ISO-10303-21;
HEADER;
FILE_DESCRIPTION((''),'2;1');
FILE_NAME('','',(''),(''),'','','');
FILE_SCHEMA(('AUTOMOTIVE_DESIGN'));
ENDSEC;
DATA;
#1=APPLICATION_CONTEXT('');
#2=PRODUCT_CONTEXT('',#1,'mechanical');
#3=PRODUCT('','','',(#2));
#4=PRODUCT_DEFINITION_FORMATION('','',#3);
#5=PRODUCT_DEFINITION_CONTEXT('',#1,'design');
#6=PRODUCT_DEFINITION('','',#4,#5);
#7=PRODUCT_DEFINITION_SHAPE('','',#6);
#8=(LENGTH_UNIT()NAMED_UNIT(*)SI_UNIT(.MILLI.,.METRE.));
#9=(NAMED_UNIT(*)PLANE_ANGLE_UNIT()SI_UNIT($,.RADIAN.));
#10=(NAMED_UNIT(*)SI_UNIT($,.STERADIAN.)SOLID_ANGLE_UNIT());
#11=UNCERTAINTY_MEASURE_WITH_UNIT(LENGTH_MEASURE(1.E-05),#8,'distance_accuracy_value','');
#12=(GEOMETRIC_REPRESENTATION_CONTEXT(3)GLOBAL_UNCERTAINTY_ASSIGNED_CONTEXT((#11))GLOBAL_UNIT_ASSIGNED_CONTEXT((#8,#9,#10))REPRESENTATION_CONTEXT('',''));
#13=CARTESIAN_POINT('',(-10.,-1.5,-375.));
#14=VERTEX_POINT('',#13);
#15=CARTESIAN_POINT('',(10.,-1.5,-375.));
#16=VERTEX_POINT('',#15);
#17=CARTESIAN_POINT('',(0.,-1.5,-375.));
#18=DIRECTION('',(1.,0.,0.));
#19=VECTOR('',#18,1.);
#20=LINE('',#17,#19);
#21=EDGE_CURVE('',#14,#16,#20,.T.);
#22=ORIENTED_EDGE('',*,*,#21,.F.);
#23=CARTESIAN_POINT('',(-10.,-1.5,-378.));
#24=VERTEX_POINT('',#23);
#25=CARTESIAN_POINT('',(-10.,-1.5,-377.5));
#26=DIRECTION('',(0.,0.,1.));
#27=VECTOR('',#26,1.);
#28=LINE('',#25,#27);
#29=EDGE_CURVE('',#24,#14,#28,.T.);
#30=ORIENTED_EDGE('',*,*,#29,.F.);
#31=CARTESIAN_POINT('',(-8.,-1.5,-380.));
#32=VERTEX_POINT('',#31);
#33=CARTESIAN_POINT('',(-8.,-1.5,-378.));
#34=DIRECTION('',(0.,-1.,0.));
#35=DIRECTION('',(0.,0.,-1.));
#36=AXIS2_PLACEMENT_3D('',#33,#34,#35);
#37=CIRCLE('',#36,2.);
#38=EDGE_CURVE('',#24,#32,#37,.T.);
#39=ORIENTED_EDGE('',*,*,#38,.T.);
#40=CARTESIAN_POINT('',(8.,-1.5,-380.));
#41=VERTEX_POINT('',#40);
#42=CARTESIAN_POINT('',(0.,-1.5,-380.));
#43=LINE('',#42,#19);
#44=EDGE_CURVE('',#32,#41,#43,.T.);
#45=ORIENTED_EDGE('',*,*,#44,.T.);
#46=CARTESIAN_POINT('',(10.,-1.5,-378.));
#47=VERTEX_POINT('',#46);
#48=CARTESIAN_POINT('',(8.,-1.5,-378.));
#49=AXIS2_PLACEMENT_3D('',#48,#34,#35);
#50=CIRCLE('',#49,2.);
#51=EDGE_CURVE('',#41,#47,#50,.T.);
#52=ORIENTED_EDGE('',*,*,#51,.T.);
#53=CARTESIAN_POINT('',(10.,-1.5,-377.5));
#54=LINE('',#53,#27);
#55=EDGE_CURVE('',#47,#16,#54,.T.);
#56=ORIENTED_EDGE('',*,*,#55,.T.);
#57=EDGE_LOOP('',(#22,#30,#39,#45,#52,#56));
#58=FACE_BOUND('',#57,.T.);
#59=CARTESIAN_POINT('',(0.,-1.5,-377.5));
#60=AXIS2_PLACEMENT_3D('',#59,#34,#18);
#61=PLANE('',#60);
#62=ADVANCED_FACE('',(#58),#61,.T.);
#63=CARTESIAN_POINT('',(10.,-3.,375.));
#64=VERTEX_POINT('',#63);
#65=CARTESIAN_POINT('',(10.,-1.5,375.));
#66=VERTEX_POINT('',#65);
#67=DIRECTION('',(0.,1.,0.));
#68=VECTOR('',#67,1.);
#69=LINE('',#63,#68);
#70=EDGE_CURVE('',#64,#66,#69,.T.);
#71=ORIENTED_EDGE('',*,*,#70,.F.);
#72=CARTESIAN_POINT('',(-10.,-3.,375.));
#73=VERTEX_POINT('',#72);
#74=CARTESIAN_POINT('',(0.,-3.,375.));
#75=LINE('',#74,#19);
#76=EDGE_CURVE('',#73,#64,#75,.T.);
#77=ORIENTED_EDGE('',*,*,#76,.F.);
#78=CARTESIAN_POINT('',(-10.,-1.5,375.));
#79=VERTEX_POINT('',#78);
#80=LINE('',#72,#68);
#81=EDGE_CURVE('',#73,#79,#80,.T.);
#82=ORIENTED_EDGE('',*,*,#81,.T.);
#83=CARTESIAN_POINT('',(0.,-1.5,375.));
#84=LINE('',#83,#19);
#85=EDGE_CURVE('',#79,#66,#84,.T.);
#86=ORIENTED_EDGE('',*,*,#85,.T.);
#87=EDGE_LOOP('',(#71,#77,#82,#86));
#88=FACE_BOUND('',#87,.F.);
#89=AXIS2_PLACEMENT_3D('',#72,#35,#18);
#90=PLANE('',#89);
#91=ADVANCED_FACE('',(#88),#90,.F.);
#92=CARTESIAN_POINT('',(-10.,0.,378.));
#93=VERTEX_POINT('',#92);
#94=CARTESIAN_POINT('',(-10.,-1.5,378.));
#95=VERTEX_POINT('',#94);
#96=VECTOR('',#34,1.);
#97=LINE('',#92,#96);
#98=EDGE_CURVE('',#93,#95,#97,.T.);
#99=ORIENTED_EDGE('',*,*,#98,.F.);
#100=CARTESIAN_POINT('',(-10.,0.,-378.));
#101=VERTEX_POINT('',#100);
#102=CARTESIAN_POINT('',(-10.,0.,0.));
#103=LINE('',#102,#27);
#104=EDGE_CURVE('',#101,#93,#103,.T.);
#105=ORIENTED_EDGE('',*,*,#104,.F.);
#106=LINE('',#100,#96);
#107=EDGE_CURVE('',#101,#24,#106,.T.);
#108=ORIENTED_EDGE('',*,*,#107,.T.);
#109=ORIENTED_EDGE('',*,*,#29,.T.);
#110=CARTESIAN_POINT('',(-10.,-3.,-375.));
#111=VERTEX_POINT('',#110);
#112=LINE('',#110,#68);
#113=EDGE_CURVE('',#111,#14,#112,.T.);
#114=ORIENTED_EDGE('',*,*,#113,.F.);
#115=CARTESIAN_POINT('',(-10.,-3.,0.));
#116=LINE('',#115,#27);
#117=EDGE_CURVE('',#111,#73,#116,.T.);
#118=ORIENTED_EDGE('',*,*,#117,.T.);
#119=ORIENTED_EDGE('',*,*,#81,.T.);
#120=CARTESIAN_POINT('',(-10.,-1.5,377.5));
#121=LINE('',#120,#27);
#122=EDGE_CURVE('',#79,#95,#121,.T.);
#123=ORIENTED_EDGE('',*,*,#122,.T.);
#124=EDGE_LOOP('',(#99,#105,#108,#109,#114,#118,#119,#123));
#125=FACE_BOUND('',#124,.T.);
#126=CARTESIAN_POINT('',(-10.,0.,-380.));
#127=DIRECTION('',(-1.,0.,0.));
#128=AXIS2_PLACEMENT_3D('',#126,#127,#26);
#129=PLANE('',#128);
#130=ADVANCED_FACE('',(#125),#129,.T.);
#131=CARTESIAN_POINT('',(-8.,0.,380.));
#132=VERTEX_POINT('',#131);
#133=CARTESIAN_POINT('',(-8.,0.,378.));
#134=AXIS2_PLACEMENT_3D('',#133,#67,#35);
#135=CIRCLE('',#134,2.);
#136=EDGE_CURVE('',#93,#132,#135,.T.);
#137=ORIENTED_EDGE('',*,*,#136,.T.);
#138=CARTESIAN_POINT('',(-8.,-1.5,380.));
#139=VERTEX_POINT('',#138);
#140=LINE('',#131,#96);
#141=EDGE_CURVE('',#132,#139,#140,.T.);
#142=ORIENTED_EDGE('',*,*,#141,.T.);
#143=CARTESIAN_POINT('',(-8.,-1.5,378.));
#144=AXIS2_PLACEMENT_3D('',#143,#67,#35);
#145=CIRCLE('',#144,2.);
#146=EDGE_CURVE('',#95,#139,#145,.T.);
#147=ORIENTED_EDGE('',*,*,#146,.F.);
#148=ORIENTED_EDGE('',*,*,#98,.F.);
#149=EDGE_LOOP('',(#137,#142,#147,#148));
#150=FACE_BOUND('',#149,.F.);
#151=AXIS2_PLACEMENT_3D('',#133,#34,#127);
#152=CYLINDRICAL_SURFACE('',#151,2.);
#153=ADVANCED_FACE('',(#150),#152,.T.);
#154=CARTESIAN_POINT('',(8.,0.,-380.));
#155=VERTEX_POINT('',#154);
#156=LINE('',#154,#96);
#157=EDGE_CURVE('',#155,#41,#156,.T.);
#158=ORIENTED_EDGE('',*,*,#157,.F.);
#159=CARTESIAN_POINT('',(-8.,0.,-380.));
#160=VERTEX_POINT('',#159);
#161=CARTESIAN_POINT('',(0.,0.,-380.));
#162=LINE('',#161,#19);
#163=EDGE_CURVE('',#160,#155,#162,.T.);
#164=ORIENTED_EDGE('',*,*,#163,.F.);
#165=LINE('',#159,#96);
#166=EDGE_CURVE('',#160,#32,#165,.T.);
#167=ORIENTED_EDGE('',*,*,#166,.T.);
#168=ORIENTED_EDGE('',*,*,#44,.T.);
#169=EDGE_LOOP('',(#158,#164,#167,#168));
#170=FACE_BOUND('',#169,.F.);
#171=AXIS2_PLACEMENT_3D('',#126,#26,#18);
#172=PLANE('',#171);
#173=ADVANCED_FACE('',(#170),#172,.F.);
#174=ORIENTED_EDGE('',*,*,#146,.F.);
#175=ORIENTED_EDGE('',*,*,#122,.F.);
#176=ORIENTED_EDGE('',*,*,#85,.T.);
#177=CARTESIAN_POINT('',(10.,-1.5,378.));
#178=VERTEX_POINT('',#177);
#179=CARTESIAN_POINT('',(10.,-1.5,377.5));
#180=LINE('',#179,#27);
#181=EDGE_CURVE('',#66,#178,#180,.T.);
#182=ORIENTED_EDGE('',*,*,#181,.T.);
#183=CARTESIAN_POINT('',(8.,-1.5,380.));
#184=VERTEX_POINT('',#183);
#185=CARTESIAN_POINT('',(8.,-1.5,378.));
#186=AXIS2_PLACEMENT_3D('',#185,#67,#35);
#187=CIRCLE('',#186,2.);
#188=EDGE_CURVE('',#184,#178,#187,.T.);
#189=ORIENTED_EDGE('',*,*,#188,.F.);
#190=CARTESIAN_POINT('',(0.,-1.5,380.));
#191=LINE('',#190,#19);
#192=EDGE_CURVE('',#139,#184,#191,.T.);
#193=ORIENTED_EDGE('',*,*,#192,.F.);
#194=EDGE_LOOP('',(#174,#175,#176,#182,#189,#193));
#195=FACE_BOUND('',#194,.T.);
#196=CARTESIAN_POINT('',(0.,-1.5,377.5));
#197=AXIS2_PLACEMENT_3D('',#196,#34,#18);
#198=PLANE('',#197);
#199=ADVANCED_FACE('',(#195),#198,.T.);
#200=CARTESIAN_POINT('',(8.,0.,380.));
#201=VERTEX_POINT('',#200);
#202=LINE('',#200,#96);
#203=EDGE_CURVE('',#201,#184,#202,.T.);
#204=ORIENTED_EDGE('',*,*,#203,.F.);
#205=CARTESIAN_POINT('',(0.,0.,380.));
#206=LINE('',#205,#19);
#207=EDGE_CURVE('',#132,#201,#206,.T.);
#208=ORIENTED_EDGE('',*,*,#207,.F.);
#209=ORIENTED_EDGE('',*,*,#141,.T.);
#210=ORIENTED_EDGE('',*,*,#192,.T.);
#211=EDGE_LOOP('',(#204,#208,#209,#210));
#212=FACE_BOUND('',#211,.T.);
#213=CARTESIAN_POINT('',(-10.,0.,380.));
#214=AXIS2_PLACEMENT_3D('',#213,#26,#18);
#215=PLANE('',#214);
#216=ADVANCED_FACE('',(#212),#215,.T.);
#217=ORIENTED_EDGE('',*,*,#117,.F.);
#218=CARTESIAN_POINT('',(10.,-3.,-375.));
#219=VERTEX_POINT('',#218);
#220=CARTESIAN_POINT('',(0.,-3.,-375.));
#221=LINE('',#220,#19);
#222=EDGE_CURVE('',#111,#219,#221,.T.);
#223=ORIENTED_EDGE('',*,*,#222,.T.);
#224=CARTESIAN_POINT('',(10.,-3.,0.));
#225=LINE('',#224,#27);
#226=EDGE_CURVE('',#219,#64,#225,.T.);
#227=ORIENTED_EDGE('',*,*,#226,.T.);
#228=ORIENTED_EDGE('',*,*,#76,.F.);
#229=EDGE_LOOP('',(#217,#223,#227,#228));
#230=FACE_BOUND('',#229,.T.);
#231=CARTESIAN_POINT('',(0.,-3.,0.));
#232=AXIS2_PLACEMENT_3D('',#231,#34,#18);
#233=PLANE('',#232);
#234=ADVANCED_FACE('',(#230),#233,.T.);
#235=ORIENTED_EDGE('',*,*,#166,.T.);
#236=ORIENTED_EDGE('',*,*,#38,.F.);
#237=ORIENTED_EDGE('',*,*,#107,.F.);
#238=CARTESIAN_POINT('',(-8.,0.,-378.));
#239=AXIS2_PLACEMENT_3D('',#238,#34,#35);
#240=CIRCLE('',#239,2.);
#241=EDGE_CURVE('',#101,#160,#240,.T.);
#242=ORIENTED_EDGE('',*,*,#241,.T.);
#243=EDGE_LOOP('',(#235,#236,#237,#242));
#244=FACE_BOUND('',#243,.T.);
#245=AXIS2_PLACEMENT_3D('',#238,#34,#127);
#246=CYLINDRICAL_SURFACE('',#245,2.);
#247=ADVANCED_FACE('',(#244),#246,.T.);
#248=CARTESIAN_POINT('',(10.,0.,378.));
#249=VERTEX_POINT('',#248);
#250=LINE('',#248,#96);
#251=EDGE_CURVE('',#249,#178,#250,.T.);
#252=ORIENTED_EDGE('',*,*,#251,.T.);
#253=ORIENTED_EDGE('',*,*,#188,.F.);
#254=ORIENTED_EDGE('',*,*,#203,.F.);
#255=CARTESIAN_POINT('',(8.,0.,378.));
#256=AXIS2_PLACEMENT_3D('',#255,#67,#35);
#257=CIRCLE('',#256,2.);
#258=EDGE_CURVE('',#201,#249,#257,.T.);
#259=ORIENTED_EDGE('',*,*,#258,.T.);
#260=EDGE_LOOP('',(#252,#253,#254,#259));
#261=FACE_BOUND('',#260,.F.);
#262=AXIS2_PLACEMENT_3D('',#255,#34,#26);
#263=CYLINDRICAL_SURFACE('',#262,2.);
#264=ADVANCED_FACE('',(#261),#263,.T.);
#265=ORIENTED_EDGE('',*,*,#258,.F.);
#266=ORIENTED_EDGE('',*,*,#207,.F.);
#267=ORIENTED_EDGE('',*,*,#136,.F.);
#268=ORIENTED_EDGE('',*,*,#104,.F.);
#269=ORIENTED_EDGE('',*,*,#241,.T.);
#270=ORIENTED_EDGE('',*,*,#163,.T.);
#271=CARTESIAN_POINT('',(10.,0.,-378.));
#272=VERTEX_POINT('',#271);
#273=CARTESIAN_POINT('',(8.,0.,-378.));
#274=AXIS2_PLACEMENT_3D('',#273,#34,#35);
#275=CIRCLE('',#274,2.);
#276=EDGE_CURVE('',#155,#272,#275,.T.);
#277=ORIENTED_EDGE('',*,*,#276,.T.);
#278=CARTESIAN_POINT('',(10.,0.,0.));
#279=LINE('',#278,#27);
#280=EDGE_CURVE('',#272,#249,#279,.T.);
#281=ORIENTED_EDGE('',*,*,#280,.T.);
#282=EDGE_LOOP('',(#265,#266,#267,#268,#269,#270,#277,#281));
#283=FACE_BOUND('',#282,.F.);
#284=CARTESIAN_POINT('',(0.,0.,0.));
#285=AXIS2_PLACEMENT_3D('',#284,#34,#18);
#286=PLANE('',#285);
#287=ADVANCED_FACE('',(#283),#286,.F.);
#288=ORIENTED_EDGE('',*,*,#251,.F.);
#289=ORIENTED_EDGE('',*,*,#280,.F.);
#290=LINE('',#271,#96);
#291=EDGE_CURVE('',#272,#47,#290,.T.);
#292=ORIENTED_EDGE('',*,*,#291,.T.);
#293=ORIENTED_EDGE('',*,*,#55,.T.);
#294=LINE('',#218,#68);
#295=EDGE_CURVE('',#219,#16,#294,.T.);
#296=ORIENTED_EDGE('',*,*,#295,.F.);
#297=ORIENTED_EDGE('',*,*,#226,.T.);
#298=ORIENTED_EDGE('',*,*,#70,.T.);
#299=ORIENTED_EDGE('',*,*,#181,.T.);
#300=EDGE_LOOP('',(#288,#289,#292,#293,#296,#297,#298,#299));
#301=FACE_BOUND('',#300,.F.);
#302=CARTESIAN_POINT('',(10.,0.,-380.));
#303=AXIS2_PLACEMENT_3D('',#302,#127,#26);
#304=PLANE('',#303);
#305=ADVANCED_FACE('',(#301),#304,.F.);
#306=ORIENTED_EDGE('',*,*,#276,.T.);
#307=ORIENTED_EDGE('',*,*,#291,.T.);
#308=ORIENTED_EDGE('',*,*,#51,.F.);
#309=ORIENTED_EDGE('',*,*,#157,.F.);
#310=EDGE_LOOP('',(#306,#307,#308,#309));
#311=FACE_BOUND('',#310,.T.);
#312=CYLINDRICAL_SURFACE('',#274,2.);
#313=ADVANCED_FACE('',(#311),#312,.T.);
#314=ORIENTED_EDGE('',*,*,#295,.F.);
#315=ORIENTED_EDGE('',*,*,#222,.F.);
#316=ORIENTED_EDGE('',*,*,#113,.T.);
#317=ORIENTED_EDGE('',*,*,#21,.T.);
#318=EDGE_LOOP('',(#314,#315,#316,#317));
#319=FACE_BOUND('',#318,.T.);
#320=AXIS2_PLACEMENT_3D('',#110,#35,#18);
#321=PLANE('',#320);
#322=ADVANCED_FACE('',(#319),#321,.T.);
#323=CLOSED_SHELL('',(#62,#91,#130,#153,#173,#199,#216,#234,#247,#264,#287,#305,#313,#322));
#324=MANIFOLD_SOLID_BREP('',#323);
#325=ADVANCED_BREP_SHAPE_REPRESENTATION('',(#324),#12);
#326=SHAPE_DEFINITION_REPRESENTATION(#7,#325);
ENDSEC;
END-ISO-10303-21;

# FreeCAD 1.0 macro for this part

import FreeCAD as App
import Part
import Sketcher

V = App.Vector


def edges_at(feature, points):
    """Names of the edges that pass closest to the given points."""
    edges = feature.Shape.Edges
    near = lambda p: min(range(len(edges)), key=lambda i: edges[i].distToShape(Part.Vertex(*p))[0])
    return sorted({f"Edge{near(p) + 1}" for p in points})

doc = App.newDocument("Part")
body = doc.addObject("PartDesign::Body", "Body")

# Sketch on XZ plane
sketch1 = body.newObject("Sketcher::SketchObject", "Sketch")
sketch1.AttachmentSupport = (doc.getObject("XZ_Plane"), [""])
sketch1.MapMode = "FlatFace"
sketch1.addGeometry(Part.LineSegment(V(-10, 380, 0), V(-10, -380, 0)), False)
sketch1.addGeometry(Part.LineSegment(V(-10, -380, 0), V(10, -380, 0)), False)
sketch1.addGeometry(Part.LineSegment(V(10, -380, 0), V(10, 380, 0)), False)
sketch1.addGeometry(Part.LineSegment(V(10, 380, 0), V(-10, 380, 0)), False)
sketch1.addConstraint(Sketcher.Constraint("Coincident", 0, 2, 1, 1))
sketch1.addConstraint(Sketcher.Constraint("Coincident", 1, 2, 2, 1))
sketch1.addConstraint(Sketcher.Constraint("Coincident", 2, 2, 3, 1))
sketch1.addConstraint(Sketcher.Constraint("Coincident", 3, 2, 0, 1))
sketch1.addConstraint(Sketcher.Constraint("Vertical", 0))
sketch1.addConstraint(Sketcher.Constraint("Horizontal", 1))
sketch1.addConstraint(Sketcher.Constraint("Vertical", 2))
sketch1.addConstraint(Sketcher.Constraint("Horizontal", 3))
sketch1.addConstraint(Sketcher.Constraint("Symmetric", 0, 2, 2, 2, -1, 1))
sketch1.addConstraint(Sketcher.Constraint("DistanceX", 1, 1, 1, 2, 20.0))
sketch1.addConstraint(Sketcher.Constraint("DistanceY", 0, 2, 0, 1, 760.0))
pad1 = body.newObject("PartDesign::Pad", "Pad")
pad1.Profile = sketch1
pad1.Length = 3

# Sketch on XZ plane
sketch2 = body.newObject("Sketcher::SketchObject", "Sketch001")
sketch2.AttachmentSupport = (doc.getObject("XZ_Plane"), [""])
sketch2.MapMode = "FlatFace"
sketch2.AttachmentOffset = App.Placement(V(0, 0, 3), App.Rotation())
sketch2.addGeometry(Part.LineSegment(V(-10, 380, 0), V(-10, 375, 0)), False)
sketch2.addGeometry(Part.LineSegment(V(-10, 375, 0), V(10, 375, 0)), False)
sketch2.addGeometry(Part.LineSegment(V(10, 375, 0), V(10, 380, 0)), False)
sketch2.addGeometry(Part.LineSegment(V(10, 380, 0), V(-10, 380, 0)), False)
sketch2.addGeometry(Part.LineSegment(V(-10, -375, 0), V(-10, -380, 0)), False)
sketch2.addGeometry(Part.LineSegment(V(-10, -380, 0), V(10, -380, 0)), False)
sketch2.addGeometry(Part.LineSegment(V(10, -380, 0), V(10, -375, 0)), False)
sketch2.addGeometry(Part.LineSegment(V(10, -375, 0), V(-10, -375, 0)), False)
sketch2.addConstraint(Sketcher.Constraint("Coincident", 0, 2, 1, 1))
sketch2.addConstraint(Sketcher.Constraint("Coincident", 1, 2, 2, 1))
sketch2.addConstraint(Sketcher.Constraint("Coincident", 2, 2, 3, 1))
sketch2.addConstraint(Sketcher.Constraint("Coincident", 3, 2, 0, 1))
sketch2.addConstraint(Sketcher.Constraint("Coincident", 4, 2, 5, 1))
sketch2.addConstraint(Sketcher.Constraint("Coincident", 5, 2, 6, 1))
sketch2.addConstraint(Sketcher.Constraint("Coincident", 6, 2, 7, 1))
sketch2.addConstraint(Sketcher.Constraint("Coincident", 7, 2, 4, 1))
sketch2.addConstraint(Sketcher.Constraint("Vertical", 0))
sketch2.addConstraint(Sketcher.Constraint("Horizontal", 1))
sketch2.addConstraint(Sketcher.Constraint("Vertical", 2))
sketch2.addConstraint(Sketcher.Constraint("Horizontal", 3))
sketch2.addConstraint(Sketcher.Constraint("Vertical", 4))
sketch2.addConstraint(Sketcher.Constraint("Horizontal", 5))
sketch2.addConstraint(Sketcher.Constraint("Vertical", 6))
sketch2.addConstraint(Sketcher.Constraint("Horizontal", 7))
sketch2.addConstraint(Sketcher.Constraint("Symmetric", 2, 2, 4, 2, -1, 1))
sketch2.addConstraint(Sketcher.Constraint("Symmetric", 0, 2, 6, 2, -1, 1))
sketch2.addConstraint(Sketcher.Constraint("Vertical", 3, 2, 4, 2))
sketch2.addConstraint(Sketcher.Constraint("DistanceX", 1, 1, 1, 2, 20.0))
sketch2.addConstraint(Sketcher.Constraint("DistanceY", 0, 2, 0, 1, 5.0))
sketch2.addConstraint(Sketcher.Constraint("DistanceY", -1, 1, 0, 2, 375.0))
pocket1 = body.newObject("PartDesign::Pocket", "Pocket")
pocket1.Profile = sketch2
pocket1.Length = 1.5
doc.recompute()

fillet = body.newObject("PartDesign::Fillet", "Fillet")
fillet.Base = (pocket1, edges_at(pocket1, [
    (10, -0.75, -380),
    (-10, -0.75, -380),
    (-10, -0.75, 380),
    (10, -0.75, 380),
]))
fillet.Radius = 2

doc.recompute()
